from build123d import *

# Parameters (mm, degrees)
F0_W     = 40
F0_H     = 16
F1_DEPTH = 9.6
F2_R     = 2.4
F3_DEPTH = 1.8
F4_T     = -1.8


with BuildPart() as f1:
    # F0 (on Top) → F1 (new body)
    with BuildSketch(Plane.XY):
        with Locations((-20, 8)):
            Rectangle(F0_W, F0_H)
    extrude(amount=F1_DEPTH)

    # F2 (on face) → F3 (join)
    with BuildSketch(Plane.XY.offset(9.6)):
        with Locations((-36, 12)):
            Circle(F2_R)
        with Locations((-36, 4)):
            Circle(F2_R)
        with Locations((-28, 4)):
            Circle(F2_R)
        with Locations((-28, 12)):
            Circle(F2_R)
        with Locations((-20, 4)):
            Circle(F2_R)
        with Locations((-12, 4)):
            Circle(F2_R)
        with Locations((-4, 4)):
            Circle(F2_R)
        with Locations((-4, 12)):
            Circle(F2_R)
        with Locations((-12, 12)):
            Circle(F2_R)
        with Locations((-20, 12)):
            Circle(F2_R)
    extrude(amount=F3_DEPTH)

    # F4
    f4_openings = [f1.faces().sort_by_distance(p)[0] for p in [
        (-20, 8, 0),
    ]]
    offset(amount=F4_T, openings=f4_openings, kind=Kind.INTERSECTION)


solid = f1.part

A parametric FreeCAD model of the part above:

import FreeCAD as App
import Part
import Sketcher

V = App.Vector


def faces_at(feature, points):
    """Names of the faces that lie closest to the given points."""
    faces = feature.Shape.Faces
    near = lambda p: min(range(len(faces)), key=lambda i: faces[i].distToShape(Part.Vertex(*p))[0])
    return sorted({f"Face{near(p) + 1}" for p in points})


def add_polygon(sketch, points):
    """Adds a closed chain of lines whose ends are joined by coincident constraints."""
    first, n = sketch.GeometryCount, len(points)
    for a, b in zip(points, points[1:] + points[:1]):
        sketch.addGeometry(Part.LineSegment(App.Vector(*a, 0), App.Vector(*b, 0)), False)
    for i in range(n):
        sketch.addConstraint(Sketcher.Constraint("Coincident", first + i, 2, first + (i + 1) % n, 1))

doc = App.newDocument("Part")
body = doc.addObject("PartDesign::Body", "Body")

# Sketch on XY plane
sketch1 = body.newObject("Sketcher::SketchObject", "Sketch")
sketch1.AttachmentSupport = (doc.getObject("XY_Plane"), [""])
sketch1.MapMode = "FlatFace"
add_polygon(sketch1, [(-40, 16), (-40, 0), (0, 0), (0, 16)])  # lines 0-3
sketch1.addConstraint([
    Sketcher.Constraint("Vertical", 0),
    Sketcher.Constraint("Horizontal", 1),
    Sketcher.Constraint("Vertical", 2),
    Sketcher.Constraint("Horizontal", 3),
    Sketcher.Constraint("Coincident", 1, 2, -1, 1),
    Sketcher.Constraint("DistanceX", 1, 1, 1, 2, 40.0),
    Sketcher.Constraint("DistanceY", 0, 2, 0, 1, 16.0),
])
pad1 = body.newObject("PartDesign::Pad", "Pad")
pad1.Profile = sketch1
pad1.Length = 9.6

# Sketch on XY plane
sketch2 = body.newObject("Sketcher::SketchObject", "Sketch001")
sketch2.AttachmentSupport = (doc.getObject("XY_Plane"), [""])
sketch2.MapMode = "FlatFace"
sketch2.AttachmentOffset = App.Placement(V(0, 0, 9.6), App.Rotation())
sketch2.addGeometry([
    Part.Circle(V(-36, 12, 0), V(0, 0, 1), 2.4),  # 0
    Part.Circle(V(-36, 4, 0), V(0, 0, 1), 2.4),  # 1
    Part.Circle(V(-28, 4, 0), V(0, 0, 1), 2.4),  # 2
    Part.Circle(V(-28, 12, 0), V(0, 0, 1), 2.4),  # 3
    Part.Circle(V(-20, 4, 0), V(0, 0, 1), 2.4),  # 4
    Part.Circle(V(-12, 4, 0), V(0, 0, 1), 2.4),  # 5
    Part.Circle(V(-4, 4, 0), V(0, 0, 1), 2.4),  # 6
    Part.Circle(V(-4, 12, 0), V(0, 0, 1), 2.4),  # 7
    Part.Circle(V(-12, 12, 0), V(0, 0, 1), 2.4),  # 8
    Part.Circle(V(-20, 12, 0), V(0, 0, 1), 2.4),  # 9
], False)
sketch2.addConstraint([
    Sketcher.Constraint("Equal", 0, 1),
    Sketcher.Constraint("Equal", 1, 2),
    Sketcher.Constraint("Equal", 2, 3),
    Sketcher.Constraint("Equal", 3, 4),
    Sketcher.Constraint("Equal", 4, 5),
    Sketcher.Constraint("Equal", 5, 6),
    Sketcher.Constraint("Equal", 6, 7),
    Sketcher.Constraint("Equal", 7, 8),
    Sketcher.Constraint("Equal", 8, 9),
    Sketcher.Constraint("Horizontal", 1, 3, 2, 3),
    Sketcher.Constraint("Horizontal", 0, 3, 3, 3),
    Sketcher.Constraint("Horizontal", 2, 3, 4, 3),
    Sketcher.Constraint("Horizontal", 4, 3, 5, 3),
    Sketcher.Constraint("Horizontal", 5, 3, 6, 3),
    Sketcher.Constraint("Horizontal", 3, 3, 7, 3),
    Sketcher.Constraint("Horizontal", 7, 3, 8, 3),
    Sketcher.Constraint("Horizontal", 8, 3, 9, 3),
    Sketcher.Constraint("Vertical", 0, 3, 1, 3),
    Sketcher.Constraint("Vertical", 2, 3, 3, 3),
    Sketcher.Constraint("Vertical", 6, 3, 7, 3),
    Sketcher.Constraint("Vertical", 5, 3, 8, 3),
    Sketcher.Constraint("Vertical", 4, 3, 9, 3),
    Sketcher.Constraint("Diameter", 0, 4.8),
    Sketcher.Constraint("DistanceX", 0, 3, -1, 1, 36.0),
    Sketcher.Constraint("DistanceY", -1, 1, 0, 3, 12.0),
    Sketcher.Constraint("DistanceY", -1, 1, 1, 3, 4.0),
    Sketcher.Constraint("DistanceX", 2, 3, -1, 1, 28.0),
    Sketcher.Constraint("DistanceX", 4, 3, -1, 1, 20.0),
    Sketcher.Constraint("DistanceX", 5, 3, -1, 1, 12.0),
    Sketcher.Constraint("DistanceX", 6, 3, -1, 1, 4.0),
])
pad2 = body.newObject("PartDesign::Pad", "Pad001")
pad2.Profile = sketch2
pad2.Length = 1.8
doc.recompute()

thickness = body.newObject("PartDesign::Thickness", "Thickness")
thickness.Base = (pad2, faces_at(pad2, [(-20, 8, 0)]))
thickness.Value = 1.8
thickness.Reversed = True
thickness.Join = "Intersection"

doc.recompute()
